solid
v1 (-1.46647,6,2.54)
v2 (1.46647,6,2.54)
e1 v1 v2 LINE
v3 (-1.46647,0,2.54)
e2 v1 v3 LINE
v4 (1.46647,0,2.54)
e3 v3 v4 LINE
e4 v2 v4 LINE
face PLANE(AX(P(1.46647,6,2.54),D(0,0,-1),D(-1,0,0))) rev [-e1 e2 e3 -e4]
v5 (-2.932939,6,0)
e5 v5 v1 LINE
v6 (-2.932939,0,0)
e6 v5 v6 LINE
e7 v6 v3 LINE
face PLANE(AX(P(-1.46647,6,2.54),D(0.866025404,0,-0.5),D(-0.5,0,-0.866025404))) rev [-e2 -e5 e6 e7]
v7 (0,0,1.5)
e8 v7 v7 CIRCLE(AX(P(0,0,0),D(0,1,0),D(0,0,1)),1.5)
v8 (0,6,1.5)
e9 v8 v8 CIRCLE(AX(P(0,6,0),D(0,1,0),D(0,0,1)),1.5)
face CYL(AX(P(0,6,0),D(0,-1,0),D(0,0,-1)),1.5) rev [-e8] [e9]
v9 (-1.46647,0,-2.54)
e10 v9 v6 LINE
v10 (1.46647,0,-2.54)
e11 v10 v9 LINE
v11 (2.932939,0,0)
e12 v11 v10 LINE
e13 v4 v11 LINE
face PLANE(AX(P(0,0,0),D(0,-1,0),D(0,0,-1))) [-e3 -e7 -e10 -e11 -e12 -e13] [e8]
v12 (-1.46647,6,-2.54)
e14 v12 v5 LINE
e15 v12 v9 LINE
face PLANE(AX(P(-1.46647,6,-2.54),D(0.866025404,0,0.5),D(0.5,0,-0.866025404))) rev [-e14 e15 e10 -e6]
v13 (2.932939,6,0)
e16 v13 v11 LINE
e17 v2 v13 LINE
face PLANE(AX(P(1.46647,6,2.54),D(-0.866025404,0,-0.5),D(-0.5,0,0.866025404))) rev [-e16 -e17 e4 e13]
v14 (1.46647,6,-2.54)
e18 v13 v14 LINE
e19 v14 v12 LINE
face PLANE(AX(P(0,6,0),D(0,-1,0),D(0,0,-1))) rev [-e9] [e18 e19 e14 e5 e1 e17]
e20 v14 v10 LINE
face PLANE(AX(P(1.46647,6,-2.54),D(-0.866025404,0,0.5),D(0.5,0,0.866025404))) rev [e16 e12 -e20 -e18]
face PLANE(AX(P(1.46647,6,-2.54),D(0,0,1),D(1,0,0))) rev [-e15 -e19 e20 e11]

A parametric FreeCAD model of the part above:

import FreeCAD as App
import Part
import Sketcher

V = App.Vector
Q = App.Units.Quantity


def add_polygon(sketch, points):
    """Adds a closed chain of lines whose ends are joined by coincident constraints."""
    first, n = sketch.GeometryCount, len(points)
    for a, b in zip(points, points[1:] + points[:1]):
        sketch.addGeometry(Part.LineSegment(App.Vector(*a, 0), App.Vector(*b, 0)), False)
    for i in range(n):
        sketch.addConstraint(Sketcher.Constraint("Coincident", first + i, 2, first + (i + 1) % n, 1))

doc = App.newDocument("Part")
body = doc.addObject("PartDesign::Body", "Body")

sketch1 = body.newObject("Sketcher::SketchObject", "Sketch")
sketch1.AttachmentSupport = (doc.getObject("XZ_Plane"), [""])
sketch1.MapMode = "FlatFace"
add_polygon(sketch1, [(1.5, -2.5), (-1.5, -2.5), (-2.9, 0), (-1.5, 2.5), (1.5, 2.5), (2.9, 0)])
sketch1.addGeometry(Part.Circle(V(0, 0, 0), V(0, 0, 1), 1.5), False)
sketch1.addConstraint([
    Sketcher.Constraint("Horizontal", 0),
    Sketcher.Constraint("Horizontal", 3),
    Sketcher.Constraint("Coincident", 6, 3, -1, 1),
    Sketcher.Constraint("Symmetric", 0, 2, 3, 2, -1, 1),
    Sketcher.Constraint("Symmetric", 1, 2, 4, 2, -1, 1),
    Sketcher.Constraint("PointOnObject", 1, 2, -1),
    Sketcher.Constraint("Parallel", 2, 5),
    Sketcher.Constraint("Vertical", 0, 2, 2, 2),
    Sketcher.Constraint("Diameter", 6, 3.0),
    Sketcher.Constraint("Angle", 1, Q("120 deg")),
    Sketcher.Constraint("DistanceY", 0, 2, -1, 1, 2.54),
    Sketcher.Constraint("DistanceX", 0, 2, 0, 1, 2.932939),
])
pad1 = body.newObject("PartDesign::Pad", "Pad")
pad1.Profile = sketch1
pad1.Length = 6
pad1.Reversed = True

doc.recompute()
